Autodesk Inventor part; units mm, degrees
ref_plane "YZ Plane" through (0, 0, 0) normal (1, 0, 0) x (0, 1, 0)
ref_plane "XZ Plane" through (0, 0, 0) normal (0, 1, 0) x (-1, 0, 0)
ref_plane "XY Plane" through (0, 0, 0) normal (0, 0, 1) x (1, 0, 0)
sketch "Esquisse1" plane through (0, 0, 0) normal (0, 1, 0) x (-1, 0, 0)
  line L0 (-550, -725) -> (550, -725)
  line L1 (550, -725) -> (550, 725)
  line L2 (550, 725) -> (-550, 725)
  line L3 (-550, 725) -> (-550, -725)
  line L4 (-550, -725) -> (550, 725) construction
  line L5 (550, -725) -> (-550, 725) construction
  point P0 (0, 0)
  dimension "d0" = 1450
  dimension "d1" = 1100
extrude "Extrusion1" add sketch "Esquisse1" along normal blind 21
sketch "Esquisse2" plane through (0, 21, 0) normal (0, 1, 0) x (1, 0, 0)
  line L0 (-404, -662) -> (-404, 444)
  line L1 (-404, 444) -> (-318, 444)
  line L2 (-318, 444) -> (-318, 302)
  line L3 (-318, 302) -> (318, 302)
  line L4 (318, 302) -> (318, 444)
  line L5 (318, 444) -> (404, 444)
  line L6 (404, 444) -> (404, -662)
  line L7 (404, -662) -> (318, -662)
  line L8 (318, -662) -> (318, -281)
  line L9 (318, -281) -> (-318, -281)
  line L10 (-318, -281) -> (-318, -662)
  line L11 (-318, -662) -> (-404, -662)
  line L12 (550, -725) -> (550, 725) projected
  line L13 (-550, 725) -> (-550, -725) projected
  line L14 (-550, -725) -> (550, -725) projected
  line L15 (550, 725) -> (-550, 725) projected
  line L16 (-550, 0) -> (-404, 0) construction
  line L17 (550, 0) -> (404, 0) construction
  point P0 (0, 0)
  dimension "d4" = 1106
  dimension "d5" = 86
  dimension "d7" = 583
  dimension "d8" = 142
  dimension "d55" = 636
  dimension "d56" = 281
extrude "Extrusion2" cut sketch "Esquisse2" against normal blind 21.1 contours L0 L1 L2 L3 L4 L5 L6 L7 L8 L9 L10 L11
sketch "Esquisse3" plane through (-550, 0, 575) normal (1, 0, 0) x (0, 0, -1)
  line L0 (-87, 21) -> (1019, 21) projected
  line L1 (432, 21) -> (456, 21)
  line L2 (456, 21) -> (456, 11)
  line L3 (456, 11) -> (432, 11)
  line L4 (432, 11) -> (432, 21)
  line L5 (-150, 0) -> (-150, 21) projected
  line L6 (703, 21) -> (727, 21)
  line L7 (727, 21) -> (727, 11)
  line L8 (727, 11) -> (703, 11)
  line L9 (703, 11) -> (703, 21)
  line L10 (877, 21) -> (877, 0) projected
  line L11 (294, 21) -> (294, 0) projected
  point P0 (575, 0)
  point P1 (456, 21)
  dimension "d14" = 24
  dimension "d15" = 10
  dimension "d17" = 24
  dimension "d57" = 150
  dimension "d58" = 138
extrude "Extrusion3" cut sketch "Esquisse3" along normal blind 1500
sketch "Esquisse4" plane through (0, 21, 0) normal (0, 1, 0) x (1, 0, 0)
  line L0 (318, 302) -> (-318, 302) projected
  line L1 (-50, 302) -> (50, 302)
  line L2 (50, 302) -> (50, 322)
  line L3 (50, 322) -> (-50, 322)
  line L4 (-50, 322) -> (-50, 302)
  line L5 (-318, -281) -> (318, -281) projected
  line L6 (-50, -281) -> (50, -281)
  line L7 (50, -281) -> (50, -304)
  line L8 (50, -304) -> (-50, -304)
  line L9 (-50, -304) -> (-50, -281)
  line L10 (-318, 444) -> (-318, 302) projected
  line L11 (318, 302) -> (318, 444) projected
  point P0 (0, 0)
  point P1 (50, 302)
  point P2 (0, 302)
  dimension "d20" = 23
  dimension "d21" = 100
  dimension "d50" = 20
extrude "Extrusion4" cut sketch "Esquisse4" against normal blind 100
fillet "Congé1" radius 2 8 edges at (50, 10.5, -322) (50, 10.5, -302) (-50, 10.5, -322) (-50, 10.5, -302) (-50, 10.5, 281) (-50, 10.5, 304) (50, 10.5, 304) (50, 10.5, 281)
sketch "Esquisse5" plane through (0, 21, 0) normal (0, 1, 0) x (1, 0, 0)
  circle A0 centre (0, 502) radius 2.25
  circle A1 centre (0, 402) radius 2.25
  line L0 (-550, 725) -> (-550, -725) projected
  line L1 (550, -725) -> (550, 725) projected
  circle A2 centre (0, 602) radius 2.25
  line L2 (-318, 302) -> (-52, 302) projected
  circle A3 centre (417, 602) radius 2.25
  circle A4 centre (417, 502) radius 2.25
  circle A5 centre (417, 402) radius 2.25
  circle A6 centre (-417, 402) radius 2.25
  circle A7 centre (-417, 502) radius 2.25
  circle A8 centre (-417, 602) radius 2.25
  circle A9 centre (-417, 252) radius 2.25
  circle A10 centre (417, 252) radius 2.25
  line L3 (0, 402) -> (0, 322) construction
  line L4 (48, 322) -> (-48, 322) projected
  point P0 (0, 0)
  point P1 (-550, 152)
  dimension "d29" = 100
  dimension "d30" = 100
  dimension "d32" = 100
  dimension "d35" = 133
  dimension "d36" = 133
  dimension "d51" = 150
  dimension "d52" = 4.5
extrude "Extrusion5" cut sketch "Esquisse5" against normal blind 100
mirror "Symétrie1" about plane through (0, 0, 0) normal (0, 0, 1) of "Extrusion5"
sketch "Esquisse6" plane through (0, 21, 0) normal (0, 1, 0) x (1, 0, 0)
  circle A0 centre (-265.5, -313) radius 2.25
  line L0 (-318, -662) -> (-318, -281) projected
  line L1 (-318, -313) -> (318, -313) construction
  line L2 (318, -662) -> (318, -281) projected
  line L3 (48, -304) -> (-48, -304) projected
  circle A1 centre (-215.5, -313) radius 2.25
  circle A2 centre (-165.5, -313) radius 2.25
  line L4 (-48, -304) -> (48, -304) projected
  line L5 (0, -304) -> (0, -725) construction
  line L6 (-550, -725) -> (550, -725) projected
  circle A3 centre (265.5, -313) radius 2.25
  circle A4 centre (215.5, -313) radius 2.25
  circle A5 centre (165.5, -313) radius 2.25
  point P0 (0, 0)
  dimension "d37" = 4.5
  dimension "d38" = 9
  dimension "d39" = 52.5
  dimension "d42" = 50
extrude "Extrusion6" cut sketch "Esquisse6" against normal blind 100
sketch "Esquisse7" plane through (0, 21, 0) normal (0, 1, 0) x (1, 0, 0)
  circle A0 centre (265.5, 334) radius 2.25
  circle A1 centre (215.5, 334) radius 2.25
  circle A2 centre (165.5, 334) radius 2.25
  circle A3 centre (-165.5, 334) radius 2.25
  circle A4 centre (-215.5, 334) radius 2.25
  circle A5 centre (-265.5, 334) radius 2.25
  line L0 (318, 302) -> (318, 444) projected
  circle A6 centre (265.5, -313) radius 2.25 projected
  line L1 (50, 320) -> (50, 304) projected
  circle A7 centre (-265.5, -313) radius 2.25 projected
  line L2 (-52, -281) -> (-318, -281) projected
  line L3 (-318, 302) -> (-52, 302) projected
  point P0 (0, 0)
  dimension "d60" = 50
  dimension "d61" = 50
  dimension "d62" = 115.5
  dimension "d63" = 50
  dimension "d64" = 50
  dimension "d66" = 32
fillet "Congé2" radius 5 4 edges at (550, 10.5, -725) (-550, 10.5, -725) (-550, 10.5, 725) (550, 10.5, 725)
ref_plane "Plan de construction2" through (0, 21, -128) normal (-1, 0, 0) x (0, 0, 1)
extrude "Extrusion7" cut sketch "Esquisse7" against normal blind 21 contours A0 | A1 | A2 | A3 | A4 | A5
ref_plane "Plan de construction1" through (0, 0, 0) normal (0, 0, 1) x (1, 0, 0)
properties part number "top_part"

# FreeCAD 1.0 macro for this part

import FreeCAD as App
import Part
import Sketcher
from FreeCAD import Vector


def edges_at(feature, points):
    """Names of the edges that pass closest to the given points."""
    edges = feature.Shape.Edges
    near = lambda p: min(range(len(edges)), key=lambda i: edges[i].distToShape(Part.Vertex(*p))[0])
    return sorted({f"Edge{near(p) + 1}" for p in points})

doc = App.newDocument("Part")
params = doc.addObject("Spreadsheet::Sheet", "Params")
for row, (alias, value) in enumerate([
    ("sketch1_width", "1100 mm"),
    ("sketch1_height", "1450 mm"),
    ("pad1_length", "21 mm"),
    ("sketch2_width", "86 mm"),
    ("sketch2_width2", "636 mm"),
    ("sketch2_height", "1106 mm"),
    ("sketch2_height2", "142 mm"),
    ("pocket1_length", "21.1 mm"),
    ("sketch3_width", "10 mm"),
    ("sketch3_height", "24 mm"),
    ("pocket2_length", "1500 mm"),
    ("sketch4_width", "100 mm"),
    ("sketch4_height", "20 mm"),
    ("sketch4_height2", "23 mm"),
    ("pocket3_length", "100 mm"),
    ("fillet_radius", "2 mm"),
    ("sketch5_diameter", "4.5 mm"),
    ("pocket4_length", "100 mm"),
    ("sketch6_diameter", "4.5 mm"),
    ("pocket5_length", "100 mm"),
    ("fillet2_radius", "5 mm"),
    ("sketch7_diameter", "4.5 mm"),
    ("pocket6_length", "21 mm"),
], start=1):
    params.set(f"A{row}", alias)
    params.set(f"B{row}", "=" + value)
    params.setAlias(f"B{row}", alias)

body = doc.addObject("PartDesign::Body", "Body")

# Sketch on XZ plane
sketch1 = body.newObject("Sketcher::SketchObject", "Sketch")
sketch1.AttachmentSupport = (doc.getObject("XZ_Plane"), [""])
sketch1.MapMode = "FlatFace"
sketch1.addGeometry([
    Part.LineSegment(Vector(550, 725, 0), Vector(550, -725, 0)),
    Part.LineSegment(Vector(550, -725, 0), Vector(-550, -725, 0)),
    Part.LineSegment(Vector(-550, -725, 0), Vector(-550, 725, 0)),
    Part.LineSegment(Vector(-550, 725, 0), Vector(550, 725, 0)),
], False)
sketch1.addConstraint([
    Sketcher.Constraint("Coincident", 0, 2, 1, 1),
    Sketcher.Constraint("Coincident", 1, 2, 2, 1),
    Sketcher.Constraint("Coincident", 2, 2, 3, 1),
    Sketcher.Constraint("Coincident", 3, 2, 0, 1),
    Sketcher.Constraint("Vertical", 0),
    Sketcher.Constraint("Horizontal", 1),
    Sketcher.Constraint("Vertical", 2),
    Sketcher.Constraint("Horizontal", 3),
    Sketcher.Constraint("Symmetric", 0, 2, 2, 2, -1, 1),
    Sketcher.Constraint("DistanceX", 1, 2, 1, 1, 1100.0),
    Sketcher.Constraint("DistanceY", 0, 2, 0, 1, 1450.0),
])
sketch1.setExpression("Constraints[9]", "Params.sketch1_width")
sketch1.setExpression("Constraints[10]", "Params.sketch1_height")
pad1 = body.newObject("PartDesign::Pad", "Pad")
pad1.Profile = sketch1
pad1.setExpression("Length", "Params.pad1_length")
pad1.Reversed = True

# Sketch on XZ plane
sketch2 = body.newObject("Sketcher::SketchObject", "Sketch001")
sketch2.AttachmentSupport = (doc.getObject("XZ_Plane"), [""])
sketch2.MapMode = "FlatFace"
sketch2.AttachmentOffset = App.Placement(Vector(0, 0, -21), App.Rotation())
sketch2.addGeometry([
    Part.LineSegment(Vector(-404, -444, 0), Vector(-404, 662, 0)),  # 0
    Part.LineSegment(Vector(-404, 662, 0), Vector(-318, 662, 0)),  # 1
    Part.LineSegment(Vector(-318, 662, 0), Vector(-318, 281, 0)),  # 2
    Part.LineSegment(Vector(-318, 281, 0), Vector(318, 281, 0)),  # 3
    Part.LineSegment(Vector(318, 281, 0), Vector(318, 662, 0)),  # 4
    Part.LineSegment(Vector(318, 662, 0), Vector(404, 662, 0)),  # 5
    Part.LineSegment(Vector(404, 662, 0), Vector(404, -444, 0)),  # 6
    Part.LineSegment(Vector(404, -444, 0), Vector(318, -444, 0)),  # 7
    Part.LineSegment(Vector(318, -444, 0), Vector(318, -302, 0)),  # 8
    Part.LineSegment(Vector(318, -302, 0), Vector(-318, -302, 0)),  # 9
    Part.LineSegment(Vector(-318, -302, 0), Vector(-318, -444, 0)),  # 10
    Part.LineSegment(Vector(-318, -444, 0), Vector(-404, -444, 0)),  # 11
], False)
sketch2.addConstraint([
    Sketcher.Constraint("Coincident", 0, 2, 1, 1),
    Sketcher.Constraint("Coincident", 1, 2, 2, 1),
    Sketcher.Constraint("Coincident", 2, 2, 3, 1),
    Sketcher.Constraint("Coincident", 3, 2, 4, 1),
    Sketcher.Constraint("Coincident", 4, 2, 5, 1),
    Sketcher.Constraint("Coincident", 5, 2, 6, 1),
    Sketcher.Constraint("Coincident", 6, 2, 7, 1),
    Sketcher.Constraint("Coincident", 7, 2, 8, 1),
    Sketcher.Constraint("Coincident", 8, 2, 9, 1),
    Sketcher.Constraint("Coincident", 9, 2, 10, 1),
    Sketcher.Constraint("Coincident", 10, 2, 11, 1),
    Sketcher.Constraint("Coincident", 11, 2, 0, 1),
    Sketcher.Constraint("Vertical", 0),
    Sketcher.Constraint("Horizontal", 1),
    Sketcher.Constraint("Vertical", 2),
    Sketcher.Constraint("Horizontal", 3),
    Sketcher.Constraint("Vertical", 4),
    Sketcher.Constraint("Horizontal", 5),
    Sketcher.Constraint("Vertical", 6),
    Sketcher.Constraint("Horizontal", 7),
    Sketcher.Constraint("Vertical", 8),
    Sketcher.Constraint("Horizontal", 9),
    Sketcher.Constraint("Vertical", 10),
    Sketcher.Constraint("Horizontal", 11),
    Sketcher.Constraint("Symmetric", 1, 2, 4, 2, -2),
    Sketcher.Constraint("Symmetric", 7, 2, 10, 2, -2),
    Sketcher.Constraint("Vertical", 4, 2, 7, 2),
    Sketcher.Constraint("Equal", 1, 5),
    Sketcher.Constraint("DistanceX", 1, 1, 1, 2, 86.0),
    Sketcher.Constraint("DistanceX", 3, 1, 3, 2, 636.0),
    Sketcher.Constraint("DistanceY", 0, 1, 0, 2, 1106.0),
    Sketcher.Constraint("DistanceY", 8, 1, 8, 2, 142.0),
    Sketcher.Constraint("DistanceY", -1, 1, 2, 2, 281.0),
    Sketcher.Constraint("DistanceY", 8, 2, 3, 2, 583.0),
])
sketch2.setExpression("Constraints[28]", "Params.sketch2_width")
sketch2.setExpression("Constraints[29]", "Params.sketch2_width2")
sketch2.setExpression("Constraints[30]", "Params.sketch2_height")
sketch2.setExpression("Constraints[31]", "Params.sketch2_height2")
pocket1 = body.newObject("PartDesign::Pocket", "Pocket")
pocket1.Profile = sketch2
pocket1.setExpression("Length", "Params.pocket1_length")
pocket1.Reversed = True

# Sketch on YZ plane
sketch3 = body.newObject("Sketcher::SketchObject", "Sketch002")
sketch3.AttachmentSupport = (doc.getObject("YZ_Plane"), [""])
sketch3.MapMode = "FlatFace"
sketch3.AttachmentOffset = App.Placement(Vector(0, 0, -550), App.Rotation())
sketch3.addGeometry([
    Part.LineSegment(Vector(21, -152, 0), Vector(21, -128, 0)),  # 0
    Part.LineSegment(Vector(21, -128, 0), Vector(11, -128, 0)),  # 1
    Part.LineSegment(Vector(11, -128, 0), Vector(11, -152, 0)),  # 2
    Part.LineSegment(Vector(11, -152, 0), Vector(21, -152, 0)),  # 3
    Part.LineSegment(Vector(21, 119, 0), Vector(21, 143, 0)),  # 4
    Part.LineSegment(Vector(21, 143, 0), Vector(11, 143, 0)),  # 5
    Part.LineSegment(Vector(11, 143, 0), Vector(11, 119, 0)),  # 6
    Part.LineSegment(Vector(11, 119, 0), Vector(21, 119, 0)),  # 7
], False)
sketch3.addConstraint([
    Sketcher.Constraint("Coincident", 0, 2, 1, 1),
    Sketcher.Constraint("Coincident", 1, 2, 2, 1),
    Sketcher.Constraint("Coincident", 2, 2, 3, 1),
    Sketcher.Constraint("Coincident", 3, 2, 0, 1),
    Sketcher.Constraint("Coincident", 4, 2, 5, 1),
    Sketcher.Constraint("Coincident", 5, 2, 6, 1),
    Sketcher.Constraint("Coincident", 6, 2, 7, 1),
    Sketcher.Constraint("Coincident", 7, 2, 4, 1),
    Sketcher.Constraint("Vertical", 0),
    Sketcher.Constraint("Horizontal", 1),
    Sketcher.Constraint("Vertical", 2),
    Sketcher.Constraint("Horizontal", 3),
    Sketcher.Constraint("Vertical", 4),
    Sketcher.Constraint("Horizontal", 5),
    Sketcher.Constraint("Vertical", 6),
    Sketcher.Constraint("Horizontal", 7),
    Sketcher.Constraint("Vertical", 3, 2, 4, 2),
    Sketcher.Constraint("Vertical", 2, 2, 5, 2),
    Sketcher.Constraint("Equal", 2, 4),
    Sketcher.Constraint("DistanceX", 1, 2, 1, 1, 10.0),
    Sketcher.Constraint("DistanceY", 0, 1, 0, 2, 24.0),
    Sketcher.Constraint("DistanceX", -1, 1, 0, 2, 21.0),
    Sketcher.Constraint("DistanceY", 0, 2, -1, 1, 128.0),
    Sketcher.Constraint("DistanceY", -1, 1, 4, 2, 143.0),
])
sketch3.setExpression("Constraints[19]", "Params.sketch3_width")
sketch3.setExpression("Constraints[20]", "Params.sketch3_height")
pocket2 = body.newObject("PartDesign::Pocket", "Pocket001")
pocket2.Profile = sketch3
pocket2.setExpression("Length", "Params.pocket2_length")
pocket2.Reversed = True

# Sketch on XZ plane
sketch4 = body.newObject("Sketcher::SketchObject", "Sketch003")
sketch4.AttachmentSupport = (doc.getObject("XZ_Plane"), [""])
sketch4.MapMode = "FlatFace"
sketch4.AttachmentOffset = App.Placement(Vector(0, 0, -21), App.Rotation())
sketch4.addGeometry([
    Part.LineSegment(Vector(-50, -302, 0), Vector(50, -302, 0)),  # 0
    Part.LineSegment(Vector(50, -302, 0), Vector(50, -322, 0)),  # 1
    Part.LineSegment(Vector(50, -322, 0), Vector(-50, -322, 0)),  # 2
    Part.LineSegment(Vector(-50, -322, 0), Vector(-50, -302, 0)),  # 3
    Part.LineSegment(Vector(50, 281, 0), Vector(-50, 281, 0)),  # 4
    Part.LineSegment(Vector(-50, 281, 0), Vector(-50, 304, 0)),  # 5
    Part.LineSegment(Vector(-50, 304, 0), Vector(50, 304, 0)),  # 6
    Part.LineSegment(Vector(50, 304, 0), Vector(50, 281, 0)),  # 7
], False)
sketch4.addConstraint([
    Sketcher.Constraint("Coincident", 0, 2, 1, 1),
    Sketcher.Constraint("Coincident", 1, 2, 2, 1),
    Sketcher.Constraint("Coincident", 2, 2, 3, 1),
    Sketcher.Constraint("Coincident", 3, 2, 0, 1),
    Sketcher.Constraint("Coincident", 4, 2, 5, 1),
    Sketcher.Constraint("Coincident", 5, 2, 6, 1),
    Sketcher.Constraint("Coincident", 6, 2, 7, 1),
    Sketcher.Constraint("Coincident", 7, 2, 4, 1),
    Sketcher.Constraint("Horizontal", 0),
    Sketcher.Constraint("Vertical", 1),
    Sketcher.Constraint("Horizontal", 2),
    Sketcher.Constraint("Vertical", 3),
    Sketcher.Constraint("Horizontal", 4),
    Sketcher.Constraint("Vertical", 5),
    Sketcher.Constraint("Horizontal", 6),
    Sketcher.Constraint("Vertical", 7),
    Sketcher.Constraint("Vertical", 3, 2, 4, 2),
    Sketcher.Constraint("Vertical", 1, 2, 6, 2),
    Sketcher.Constraint("DistanceX", 0, 1, 0, 2, 100.0),
    Sketcher.Constraint("DistanceY", 1, 2, 1, 1, 20.0),
    Sketcher.Constraint("DistanceY", 5, 1, 5, 2, 23.0),
    Sketcher.Constraint("DistanceX", -1, 1, 0, 2, 50.0),
    Sketcher.Constraint("DistanceY", 0, 2, -1, 1, 302.0),
    Sketcher.Constraint("DistanceY", -1, 1, 4, 2, 281.0),
])
sketch4.setExpression("Constraints[18]", "Params.sketch4_width")
sketch4.setExpression("Constraints[19]", "Params.sketch4_height")
sketch4.setExpression("Constraints[20]", "Params.sketch4_height2")
pocket3 = body.newObject("PartDesign::Pocket", "Pocket002")
pocket3.Profile = sketch4
pocket3.setExpression("Length", "Params.pocket3_length")
pocket3.Reversed = True
doc.recompute()

fillet = body.newObject("PartDesign::Fillet", "Fillet")
fillet.Base = (pocket3, edges_at(pocket3, [
    (50, 10.5, -322),
    (50, 10.5, -302),
    (-50, 10.5, -322),
    (-50, 10.5, -302),
    (-50, 10.5, 281),
    (-50, 10.5, 304),
    (50, 10.5, 304),
    (50, 10.5, 281),
]))
fillet.setExpression("Radius", "Params.fillet_radius")

# Sketch on XZ plane
sketch5 = body.newObject("Sketcher::SketchObject", "Sketch004")
sketch5.AttachmentSupport = (doc.getObject("XZ_Plane"), [""])
sketch5.MapMode = "FlatFace"
sketch5.AttachmentOffset = App.Placement(Vector(0, 0, -21), App.Rotation())
sketch5.addGeometry([
    Part.Circle(Vector(0, -502, 0), Vector(0, 0, 1), 2.25),  # 0
    Part.Circle(Vector(0, -402, 0), Vector(0, 0, 1), 2.25),  # 1
    Part.Circle(Vector(0, -602, 0), Vector(0, 0, 1), 2.25),  # 2
    Part.Circle(Vector(417, -602, 0), Vector(0, 0, 1), 2.25),  # 3
    Part.Circle(Vector(417, -502, 0), Vector(0, 0, 1), 2.25),  # 4
    Part.Circle(Vector(417, -402, 0), Vector(0, 0, 1), 2.25),  # 5
    Part.Circle(Vector(-417, -402, 0), Vector(0, 0, 1), 2.25),  # 6
    Part.Circle(Vector(-417, -502, 0), Vector(0, 0, 1), 2.25),  # 7
    Part.Circle(Vector(-417, -602, 0), Vector(0, 0, 1), 2.25),  # 8
    Part.Circle(Vector(-417, -252, 0), Vector(0, 0, 1), 2.25),  # 9
    Part.Circle(Vector(417, -252, 0), Vector(0, 0, 1), 2.25),  # 10
], False)
sketch5.addConstraint([
    Sketcher.Constraint("Equal", 0, 1),
    Sketcher.Constraint("Equal", 1, 2),
    Sketcher.Constraint("Equal", 2, 3),
    Sketcher.Constraint("Equal", 3, 4),
    Sketcher.Constraint("Equal", 4, 5),
    Sketcher.Constraint("Equal", 5, 6),
    Sketcher.Constraint("Equal", 6, 7),
    Sketcher.Constraint("Equal", 7, 8),
    Sketcher.Constraint("Equal", 8, 9),
    Sketcher.Constraint("Equal", 9, 10),
    Sketcher.Constraint("Symmetric", 5, 3, 6, 3, -2),
    Sketcher.Constraint("Symmetric", 4, 3, 7, 3, -2),
    Sketcher.Constraint("Symmetric", 3, 3, 8, 3, -2),
    Sketcher.Constraint("Symmetric", 9, 3, 10, 3, -2),
    Sketcher.Constraint("PointOnObject", 0, 3, -2),
    Sketcher.Constraint("PointOnObject", 1, 3, -2),
    Sketcher.Constraint("PointOnObject", 2, 3, -2),
    Sketcher.Constraint("Horizontal", 2, 3, 3, 3),
    Sketcher.Constraint("Horizontal", 0, 3, 4, 3),
    Sketcher.Constraint("Horizontal", 1, 3, 5, 3),
    Sketcher.Constraint("Vertical", 3, 3, 4, 3),
    Sketcher.Constraint("Vertical", 4, 3, 5, 3),
    Sketcher.Constraint("Vertical", 8, 3, 9, 3),
    Sketcher.Constraint("Diameter", 0, 4.5),
    Sketcher.Constraint("DistanceY", 0, 3, 1, 3, 100.0),
    Sketcher.Constraint("DistanceY", 2, 3, 0, 3, 100.0),
    Sketcher.Constraint("DistanceY", 6, 3, 9, 3, 150.0),
    Sketcher.Constraint("DistanceY", 0, 3, -1, 1, 502.0),
    Sketcher.Constraint("DistanceX", -1, 1, 3, 3, 417.0),
])
sketch5.setExpression("Constraints[23]", "Params.sketch5_diameter")
pocket4 = body.newObject("PartDesign::Pocket", "Pocket003")
pocket4.Profile = sketch5
pocket4.setExpression("Length", "Params.pocket4_length")
pocket4.Reversed = True
doc.recompute()

mirrored = body.newObject("PartDesign::Mirrored", "Mirrored")
mirrored.Originals = [pocket4]
mirrored.MirrorPlane = (doc.getObject("XY_Plane"), [""])
body.Tip = mirrored

# Sketch on XZ plane
sketch6 = body.newObject("Sketcher::SketchObject", "Sketch005")
sketch6.AttachmentSupport = (doc.getObject("XZ_Plane"), [""])
sketch6.MapMode = "FlatFace"
sketch6.AttachmentOffset = App.Placement(Vector(0, 0, -21), App.Rotation())
sketch6.addGeometry([
    Part.Circle(Vector(-265.5, 313, 0), Vector(0, 0, 1), 2.25),  # 0
    Part.Circle(Vector(-215.5, 313, 0), Vector(0, 0, 1), 2.25),  # 1
    Part.Circle(Vector(-165.5, 313, 0), Vector(0, 0, 1), 2.25),  # 2
    Part.Circle(Vector(265.5, 313, 0), Vector(0, 0, 1), 2.25),  # 3
    Part.Circle(Vector(215.5, 313, 0), Vector(0, 0, 1), 2.25),  # 4
    Part.Circle(Vector(165.5, 313, 0), Vector(0, 0, 1), 2.25),  # 5
], False)
sketch6.addConstraint([
    Sketcher.Constraint("Equal", 0, 1),
    Sketcher.Constraint("Equal", 1, 2),
    Sketcher.Constraint("Equal", 2, 3),
    Sketcher.Constraint("Equal", 3, 4),
    Sketcher.Constraint("Equal", 4, 5),
    Sketcher.Constraint("Symmetric", 0, 3, 3, 3, -2),
    Sketcher.Constraint("Symmetric", 1, 3, 4, 3, -2),
    Sketcher.Constraint("Symmetric", 2, 3, 5, 3, -2),
    Sketcher.Constraint("Horizontal", 0, 3, 1, 3),
    Sketcher.Constraint("Horizontal", 1, 3, 2, 3),
    Sketcher.Constraint("Diameter", 0, 4.5),
    Sketcher.Constraint("DistanceX", 0, 3, 1, 3, 50.0),
    Sketcher.Constraint("DistanceX", 1, 3, 2, 3, 50.0),
    Sketcher.Constraint("DistanceY", -1, 1, 0, 3, 313.0),
    Sketcher.Constraint("DistanceX", 2, 3, 3, 3, 431.0),
])
sketch6.setExpression("Constraints[10]", "Params.sketch6_diameter")
pocket5 = body.newObject("PartDesign::Pocket", "Pocket004")
pocket5.Profile = sketch6
pocket5.setExpression("Length", "Params.pocket5_length")
pocket5.Reversed = True
doc.recompute()

fillet2 = body.newObject("PartDesign::Fillet", "Fillet001")
fillet2.Base = (pocket5, edges_at(pocket5, [
    (550, 10.5, -725),
    (-550, 10.5, -725),
    (-550, 10.5, 725),
    (550, 10.5, 725),
]))
fillet2.setExpression("Radius", "Params.fillet2_radius")

# Sketch on XZ plane
sketch7 = body.newObject("Sketcher::SketchObject", "Sketch006")
sketch7.AttachmentSupport = (doc.getObject("XZ_Plane"), [""])
sketch7.MapMode = "FlatFace"
sketch7.AttachmentOffset = App.Placement(Vector(0, 0, -21), App.Rotation())
sketch7.addGeometry([
    Part.Circle(Vector(265.5, -334, 0), Vector(0, 0, 1), 2.25),  # 0
    Part.Circle(Vector(215.5, -334, 0), Vector(0, 0, 1), 2.25),  # 1
    Part.Circle(Vector(165.5, -334, 0), Vector(0, 0, 1), 2.25),  # 2
    Part.Circle(Vector(-165.5, -334, 0), Vector(0, 0, 1), 2.25),  # 3
    Part.Circle(Vector(-215.5, -334, 0), Vector(0, 0, 1), 2.25),  # 4
    Part.Circle(Vector(-265.5, -334, 0), Vector(0, 0, 1), 2.25),  # 5
], False)
sketch7.addConstraint([
    Sketcher.Constraint("Equal", 0, 1),
    Sketcher.Constraint("Equal", 1, 2),
    Sketcher.Constraint("Equal", 2, 3),
    Sketcher.Constraint("Equal", 3, 4),
    Sketcher.Constraint("Equal", 4, 5),
    Sketcher.Constraint("Symmetric", 2, 3, 3, 3, -2),
    Sketcher.Constraint("Symmetric", 1, 3, 4, 3, -2),
    Sketcher.Constraint("Symmetric", 0, 3, 5, 3, -2),
    Sketcher.Constraint("Horizontal", 0, 3, 1, 3),
    Sketcher.Constraint("Horizontal", 1, 3, 2, 3),
    Sketcher.Constraint("DistanceX", 1, 3, 0, 3, 50.0),
    Sketcher.Constraint("DistanceX", 2, 3, 1, 3, 50.0),
    Sketcher.Constraint("Diameter", 0, 4.5),
    Sketcher.Constraint("DistanceY", 0, 3, -1, 1, 334.0),
    Sketcher.Constraint("DistanceX", 3, 3, 2, 3, 331.0),
])
sketch7.setExpression("Constraints[12]", "Params.sketch7_diameter")
pocket6 = body.newObject("PartDesign::Pocket", "Pocket005")
pocket6.Profile = sketch7
pocket6.setExpression("Length", "Params.pocket6_length")
pocket6.Reversed = True

doc.recompute()
